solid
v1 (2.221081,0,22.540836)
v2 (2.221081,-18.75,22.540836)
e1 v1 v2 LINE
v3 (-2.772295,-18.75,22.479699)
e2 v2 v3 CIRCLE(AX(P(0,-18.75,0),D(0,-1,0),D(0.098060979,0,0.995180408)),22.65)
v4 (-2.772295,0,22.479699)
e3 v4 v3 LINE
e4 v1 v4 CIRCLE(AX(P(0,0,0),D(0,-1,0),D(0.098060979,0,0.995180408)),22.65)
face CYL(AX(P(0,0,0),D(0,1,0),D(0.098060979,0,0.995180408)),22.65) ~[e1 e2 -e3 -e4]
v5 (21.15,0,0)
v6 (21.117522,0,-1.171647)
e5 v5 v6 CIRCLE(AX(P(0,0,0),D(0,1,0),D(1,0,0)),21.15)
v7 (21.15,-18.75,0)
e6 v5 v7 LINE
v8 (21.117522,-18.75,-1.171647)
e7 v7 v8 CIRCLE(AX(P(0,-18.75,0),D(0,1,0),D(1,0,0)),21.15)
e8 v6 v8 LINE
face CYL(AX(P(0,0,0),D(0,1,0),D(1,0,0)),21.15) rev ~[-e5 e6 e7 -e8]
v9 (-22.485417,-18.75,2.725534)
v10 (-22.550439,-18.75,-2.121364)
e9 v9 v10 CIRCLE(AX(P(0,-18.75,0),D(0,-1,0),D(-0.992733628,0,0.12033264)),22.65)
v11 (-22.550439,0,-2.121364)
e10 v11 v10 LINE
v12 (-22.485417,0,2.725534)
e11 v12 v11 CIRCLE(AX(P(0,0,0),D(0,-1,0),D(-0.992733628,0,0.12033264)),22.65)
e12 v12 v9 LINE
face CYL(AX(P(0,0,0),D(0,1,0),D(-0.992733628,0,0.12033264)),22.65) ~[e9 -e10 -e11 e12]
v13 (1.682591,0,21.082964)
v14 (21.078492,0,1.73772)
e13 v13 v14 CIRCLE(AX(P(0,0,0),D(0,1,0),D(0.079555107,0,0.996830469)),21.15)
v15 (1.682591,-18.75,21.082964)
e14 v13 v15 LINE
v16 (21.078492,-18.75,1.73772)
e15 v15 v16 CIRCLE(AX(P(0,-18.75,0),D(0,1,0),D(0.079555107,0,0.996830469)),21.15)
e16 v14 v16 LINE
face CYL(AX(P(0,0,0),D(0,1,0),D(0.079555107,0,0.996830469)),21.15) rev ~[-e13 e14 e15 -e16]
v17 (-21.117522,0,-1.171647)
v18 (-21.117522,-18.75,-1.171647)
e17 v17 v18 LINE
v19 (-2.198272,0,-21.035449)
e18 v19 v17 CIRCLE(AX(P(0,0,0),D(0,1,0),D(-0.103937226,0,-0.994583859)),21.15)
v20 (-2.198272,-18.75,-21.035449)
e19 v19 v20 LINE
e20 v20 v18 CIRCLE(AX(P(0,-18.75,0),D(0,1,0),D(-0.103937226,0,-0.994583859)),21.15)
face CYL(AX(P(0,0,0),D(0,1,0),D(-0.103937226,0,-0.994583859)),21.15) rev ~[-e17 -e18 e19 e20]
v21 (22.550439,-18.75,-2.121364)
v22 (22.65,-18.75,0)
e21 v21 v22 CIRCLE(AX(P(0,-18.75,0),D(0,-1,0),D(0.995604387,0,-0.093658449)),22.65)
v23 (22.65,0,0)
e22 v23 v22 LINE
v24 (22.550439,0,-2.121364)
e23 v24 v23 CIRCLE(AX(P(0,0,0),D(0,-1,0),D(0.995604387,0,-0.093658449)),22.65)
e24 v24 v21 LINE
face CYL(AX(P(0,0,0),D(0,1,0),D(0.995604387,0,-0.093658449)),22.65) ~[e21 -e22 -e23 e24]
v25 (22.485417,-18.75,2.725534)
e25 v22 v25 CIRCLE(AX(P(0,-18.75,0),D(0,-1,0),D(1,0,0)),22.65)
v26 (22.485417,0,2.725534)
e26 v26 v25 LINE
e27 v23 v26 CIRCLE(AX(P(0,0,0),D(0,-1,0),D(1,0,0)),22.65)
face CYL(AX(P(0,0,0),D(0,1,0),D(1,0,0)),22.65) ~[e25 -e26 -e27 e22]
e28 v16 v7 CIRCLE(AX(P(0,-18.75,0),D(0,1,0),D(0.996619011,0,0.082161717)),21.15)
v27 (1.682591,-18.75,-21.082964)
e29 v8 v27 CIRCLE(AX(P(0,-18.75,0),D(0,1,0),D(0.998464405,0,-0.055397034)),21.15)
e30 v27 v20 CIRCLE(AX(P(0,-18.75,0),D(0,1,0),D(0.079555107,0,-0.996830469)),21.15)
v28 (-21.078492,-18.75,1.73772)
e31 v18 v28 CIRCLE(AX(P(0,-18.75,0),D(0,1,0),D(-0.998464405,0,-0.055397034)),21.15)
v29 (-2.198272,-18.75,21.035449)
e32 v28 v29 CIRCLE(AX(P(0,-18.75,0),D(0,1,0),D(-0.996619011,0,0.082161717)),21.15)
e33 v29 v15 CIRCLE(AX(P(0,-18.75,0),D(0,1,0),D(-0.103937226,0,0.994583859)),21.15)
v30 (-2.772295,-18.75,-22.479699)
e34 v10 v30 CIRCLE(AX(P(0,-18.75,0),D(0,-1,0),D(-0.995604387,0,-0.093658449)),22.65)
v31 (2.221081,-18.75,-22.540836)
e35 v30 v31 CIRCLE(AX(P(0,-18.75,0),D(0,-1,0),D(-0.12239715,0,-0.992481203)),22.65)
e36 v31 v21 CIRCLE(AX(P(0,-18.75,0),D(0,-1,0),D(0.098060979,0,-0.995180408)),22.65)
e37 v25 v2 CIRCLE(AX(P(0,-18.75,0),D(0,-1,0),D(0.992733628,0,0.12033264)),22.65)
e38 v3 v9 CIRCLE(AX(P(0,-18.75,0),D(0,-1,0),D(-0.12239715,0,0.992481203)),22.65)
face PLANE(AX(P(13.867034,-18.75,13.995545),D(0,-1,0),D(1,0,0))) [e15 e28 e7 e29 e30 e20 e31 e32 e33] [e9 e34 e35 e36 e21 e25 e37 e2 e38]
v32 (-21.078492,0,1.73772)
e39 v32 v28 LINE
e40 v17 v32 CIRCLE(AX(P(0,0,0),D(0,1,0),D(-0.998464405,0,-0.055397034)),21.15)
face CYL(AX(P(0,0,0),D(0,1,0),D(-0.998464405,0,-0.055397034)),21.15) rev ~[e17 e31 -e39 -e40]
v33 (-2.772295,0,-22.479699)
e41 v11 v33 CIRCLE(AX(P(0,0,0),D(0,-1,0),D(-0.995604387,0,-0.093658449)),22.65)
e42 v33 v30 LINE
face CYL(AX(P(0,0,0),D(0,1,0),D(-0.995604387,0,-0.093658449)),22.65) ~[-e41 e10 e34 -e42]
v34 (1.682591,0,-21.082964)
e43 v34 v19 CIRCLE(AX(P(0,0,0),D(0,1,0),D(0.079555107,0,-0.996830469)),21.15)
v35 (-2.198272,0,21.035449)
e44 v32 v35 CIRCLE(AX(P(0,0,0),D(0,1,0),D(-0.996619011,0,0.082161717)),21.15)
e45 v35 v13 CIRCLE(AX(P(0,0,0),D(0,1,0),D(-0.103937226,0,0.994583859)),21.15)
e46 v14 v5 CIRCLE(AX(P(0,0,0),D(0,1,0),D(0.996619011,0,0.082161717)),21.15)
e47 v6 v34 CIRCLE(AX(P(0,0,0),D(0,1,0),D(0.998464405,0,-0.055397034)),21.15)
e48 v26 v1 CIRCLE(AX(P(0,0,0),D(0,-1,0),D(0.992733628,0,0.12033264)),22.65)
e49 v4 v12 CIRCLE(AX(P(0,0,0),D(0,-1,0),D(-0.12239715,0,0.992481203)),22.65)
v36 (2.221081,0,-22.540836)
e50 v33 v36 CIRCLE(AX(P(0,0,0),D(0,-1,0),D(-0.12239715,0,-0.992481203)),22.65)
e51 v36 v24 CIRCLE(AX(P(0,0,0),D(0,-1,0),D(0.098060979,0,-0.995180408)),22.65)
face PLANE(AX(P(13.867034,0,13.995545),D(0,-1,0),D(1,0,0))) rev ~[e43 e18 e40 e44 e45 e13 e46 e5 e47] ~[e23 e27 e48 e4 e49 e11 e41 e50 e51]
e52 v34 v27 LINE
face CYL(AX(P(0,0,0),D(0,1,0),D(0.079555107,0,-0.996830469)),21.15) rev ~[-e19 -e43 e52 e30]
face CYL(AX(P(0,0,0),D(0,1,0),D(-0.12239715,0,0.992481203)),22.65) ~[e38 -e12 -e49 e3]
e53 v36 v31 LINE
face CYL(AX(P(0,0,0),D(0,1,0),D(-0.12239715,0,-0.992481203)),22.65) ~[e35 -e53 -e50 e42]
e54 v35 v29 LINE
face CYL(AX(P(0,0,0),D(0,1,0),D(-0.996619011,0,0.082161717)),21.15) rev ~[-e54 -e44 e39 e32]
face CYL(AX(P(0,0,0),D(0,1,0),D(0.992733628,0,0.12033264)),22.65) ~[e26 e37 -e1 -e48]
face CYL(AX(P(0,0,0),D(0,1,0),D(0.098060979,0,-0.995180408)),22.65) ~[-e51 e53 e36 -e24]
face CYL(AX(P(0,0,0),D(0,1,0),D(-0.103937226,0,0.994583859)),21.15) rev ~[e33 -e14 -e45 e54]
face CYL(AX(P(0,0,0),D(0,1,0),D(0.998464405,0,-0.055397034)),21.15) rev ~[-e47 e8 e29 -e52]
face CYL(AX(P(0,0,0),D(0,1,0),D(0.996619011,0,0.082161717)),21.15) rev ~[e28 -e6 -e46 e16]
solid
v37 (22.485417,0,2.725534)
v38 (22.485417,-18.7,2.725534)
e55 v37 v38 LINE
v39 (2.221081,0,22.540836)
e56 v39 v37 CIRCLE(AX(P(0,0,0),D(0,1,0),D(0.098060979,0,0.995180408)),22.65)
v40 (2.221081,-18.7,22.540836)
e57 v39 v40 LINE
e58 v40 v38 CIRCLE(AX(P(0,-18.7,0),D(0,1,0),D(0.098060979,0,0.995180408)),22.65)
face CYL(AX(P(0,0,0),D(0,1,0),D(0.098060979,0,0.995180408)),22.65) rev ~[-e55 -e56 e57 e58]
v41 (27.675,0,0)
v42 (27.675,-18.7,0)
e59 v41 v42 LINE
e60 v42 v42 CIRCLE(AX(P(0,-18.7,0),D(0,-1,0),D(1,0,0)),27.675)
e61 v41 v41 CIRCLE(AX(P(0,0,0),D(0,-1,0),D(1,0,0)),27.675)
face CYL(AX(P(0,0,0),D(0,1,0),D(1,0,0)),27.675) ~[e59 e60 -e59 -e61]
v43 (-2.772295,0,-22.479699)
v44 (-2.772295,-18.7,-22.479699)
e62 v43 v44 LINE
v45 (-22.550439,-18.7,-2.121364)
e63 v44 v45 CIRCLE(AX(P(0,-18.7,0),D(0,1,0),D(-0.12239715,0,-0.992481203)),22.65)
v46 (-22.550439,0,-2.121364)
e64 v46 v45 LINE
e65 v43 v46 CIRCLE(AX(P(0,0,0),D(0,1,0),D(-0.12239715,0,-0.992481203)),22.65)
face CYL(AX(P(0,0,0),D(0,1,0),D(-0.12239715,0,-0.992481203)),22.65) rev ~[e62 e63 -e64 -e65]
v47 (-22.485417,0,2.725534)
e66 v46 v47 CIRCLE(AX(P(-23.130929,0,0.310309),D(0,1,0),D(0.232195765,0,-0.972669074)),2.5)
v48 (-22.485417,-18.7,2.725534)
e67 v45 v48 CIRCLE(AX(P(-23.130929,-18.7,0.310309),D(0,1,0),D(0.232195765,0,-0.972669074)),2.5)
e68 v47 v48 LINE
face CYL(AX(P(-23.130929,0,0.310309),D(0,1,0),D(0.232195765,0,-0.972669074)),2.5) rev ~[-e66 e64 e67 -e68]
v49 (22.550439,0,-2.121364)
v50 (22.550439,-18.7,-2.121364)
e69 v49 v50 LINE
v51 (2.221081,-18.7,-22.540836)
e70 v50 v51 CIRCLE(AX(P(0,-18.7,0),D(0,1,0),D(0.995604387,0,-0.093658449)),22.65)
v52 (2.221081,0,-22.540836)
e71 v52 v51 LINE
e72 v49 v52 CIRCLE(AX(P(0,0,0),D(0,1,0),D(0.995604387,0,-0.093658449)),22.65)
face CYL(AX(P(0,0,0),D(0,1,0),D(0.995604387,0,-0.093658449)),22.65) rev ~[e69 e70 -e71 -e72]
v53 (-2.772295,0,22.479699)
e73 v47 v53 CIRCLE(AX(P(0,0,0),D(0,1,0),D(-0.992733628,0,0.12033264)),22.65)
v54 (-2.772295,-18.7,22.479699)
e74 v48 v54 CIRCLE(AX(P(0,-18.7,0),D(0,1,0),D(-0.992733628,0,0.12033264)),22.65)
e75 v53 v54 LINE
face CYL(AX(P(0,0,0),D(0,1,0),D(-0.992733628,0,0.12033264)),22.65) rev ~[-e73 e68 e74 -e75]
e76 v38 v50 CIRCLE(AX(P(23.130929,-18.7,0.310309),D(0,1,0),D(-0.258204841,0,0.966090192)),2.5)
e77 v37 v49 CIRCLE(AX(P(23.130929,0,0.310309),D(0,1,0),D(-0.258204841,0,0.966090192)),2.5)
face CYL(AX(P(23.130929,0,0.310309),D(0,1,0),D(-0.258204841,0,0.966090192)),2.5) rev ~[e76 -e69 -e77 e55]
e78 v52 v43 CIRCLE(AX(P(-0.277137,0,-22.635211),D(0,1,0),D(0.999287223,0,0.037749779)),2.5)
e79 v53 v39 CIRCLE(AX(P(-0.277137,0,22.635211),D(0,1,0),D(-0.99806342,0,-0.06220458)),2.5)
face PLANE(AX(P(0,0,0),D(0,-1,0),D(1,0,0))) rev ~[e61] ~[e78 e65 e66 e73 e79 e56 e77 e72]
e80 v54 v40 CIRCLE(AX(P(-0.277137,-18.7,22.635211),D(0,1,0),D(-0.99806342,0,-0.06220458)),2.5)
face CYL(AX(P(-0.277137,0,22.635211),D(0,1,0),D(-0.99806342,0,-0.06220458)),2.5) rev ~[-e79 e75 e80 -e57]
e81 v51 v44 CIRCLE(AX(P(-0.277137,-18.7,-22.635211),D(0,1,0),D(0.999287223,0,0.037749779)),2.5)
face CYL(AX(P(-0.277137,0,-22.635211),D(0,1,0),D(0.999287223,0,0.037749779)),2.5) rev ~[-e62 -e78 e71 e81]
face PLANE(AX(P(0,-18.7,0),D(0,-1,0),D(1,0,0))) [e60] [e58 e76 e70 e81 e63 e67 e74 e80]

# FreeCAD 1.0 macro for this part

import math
import FreeCAD as App
import Part
import Sketcher

doc = App.newDocument("Part")
body = doc.addObject("PartDesign::Body", "Body")

# Sketch on XZ plane
sketch1 = doc.addObject("Sketcher::SketchObject", "Sketch")
body.addObject(sketch1)
sketch1.AttachmentSupport = (doc.XZ_Plane, [""])
sketch1.MapMode = "FlatFace"
sketch1.addGeometry(Part.Circle(App.Vector(0, 0, 0), App.Vector(0, 0, 1), 27.7), False)
sketch1.addGeometry(Part.ArcOfCircle(Part.Circle(App.Vector(-0.3, 22.6, 0), App.Vector(0, 0, 1), 2.5), math.radians(-2), math.radians(184)), False)
sketch1.addGeometry(Part.ArcOfCircle(Part.Circle(App.Vector(0, 0, 0), App.Vector(0, 0, 1), 22.6), math.radians(7), math.radians(84)), False)
sketch1.addGeometry(Part.ArcOfCircle(Part.Circle(App.Vector(23.1, 0.3, 0), App.Vector(0, 0, 1), 2.5), math.radians(-103), math.radians(105)), False)
sketch1.addGeometry(Part.ArcOfCircle(Part.Circle(App.Vector(0, 0, 0), App.Vector(0, 0, 1), 22.6), math.radians(-84), math.radians(-5)), False)
sketch1.addGeometry(Part.ArcOfCircle(Part.Circle(App.Vector(-0.3, -22.6, 0), App.Vector(0, 0, 1), 2.5), math.radians(176), math.radians(362)), False)
sketch1.addGeometry(Part.ArcOfCircle(Part.Circle(App.Vector(0, 0, 0), App.Vector(0, 0, 1), 22.6), math.radians(-175), math.radians(-97)), False)
sketch1.addGeometry(Part.ArcOfCircle(Part.Circle(App.Vector(-23.1, 0.3, 0), App.Vector(0, 0, 1), 2.5), math.radians(75), math.radians(283)), False)
sketch1.addGeometry(Part.ArcOfCircle(Part.Circle(App.Vector(0, 0, 0), App.Vector(0, 0, 1), 22.6), math.radians(97), math.radians(173)), False)
sketch1.addConstraint(Sketcher.Constraint("Coincident", 1, 1, 2, 2))
sketch1.addConstraint(Sketcher.Constraint("Coincident", 2, 1, 3, 2))
sketch1.addConstraint(Sketcher.Constraint("Coincident", 3, 1, 4, 2))
sketch1.addConstraint(Sketcher.Constraint("Coincident", 4, 1, 5, 2))
sketch1.addConstraint(Sketcher.Constraint("Coincident", 5, 1, 6, 2))
sketch1.addConstraint(Sketcher.Constraint("Coincident", 6, 1, 7, 2))
sketch1.addConstraint(Sketcher.Constraint("Coincident", 7, 1, 8, 2))
sketch1.addConstraint(Sketcher.Constraint("Coincident", 8, 1, 1, 2))
sketch1.addConstraint(Sketcher.Constraint("Coincident", 0, 3, -1, 1))
sketch1.addConstraint(Sketcher.Constraint("Coincident", 2, 3, -1, 1))
sketch1.addConstraint(Sketcher.Constraint("Coincident", 4, 3, -1, 1))
sketch1.addConstraint(Sketcher.Constraint("Coincident", 6, 3, -1, 1))
sketch1.addConstraint(Sketcher.Constraint("Coincident", 8, 3, -1, 1))
sketch1.addConstraint(Sketcher.Constraint("Equal", 1, 3))
sketch1.addConstraint(Sketcher.Constraint("Equal", 2, 4))
sketch1.addConstraint(Sketcher.Constraint("Equal", 3, 5))
sketch1.addConstraint(Sketcher.Constraint("Equal", 4, 6))
sketch1.addConstraint(Sketcher.Constraint("Equal", 5, 7))
sketch1.addConstraint(Sketcher.Constraint("Equal", 6, 8))
sketch1.addConstraint(Sketcher.Constraint("Symmetric", 3, 3, 7, 3, -2))
sketch1.addConstraint(Sketcher.Constraint("Symmetric", 1, 3, 5, 3, -1))
sketch1.addConstraint(Sketcher.Constraint("Radius", 1, 2.5))
sketch1.addConstraint(Sketcher.Constraint("Diameter", 0, 55.35))
sketch1.addConstraint(Sketcher.Constraint("Radius", 2, 22.65))
sketch1.addConstraint(Sketcher.Constraint("DistanceY", 5, 1, -1, 1, 22.479699))
sketch1.addConstraint(Sketcher.Constraint("DistanceY", 3, 3, 1, 3, 22.324902))
sketch1.addConstraint(Sketcher.Constraint("DistanceY", 3, 1, 2, 1, 4.846898))
sketch1.addConstraint(Sketcher.Constraint("DistanceY", -1, 1, 1, 3, 22.635211))
pad1 = doc.addObject("PartDesign::Pad", "Pad")
body.addObject(pad1)
pad1.Profile = sketch1
pad1.Length = 18.7
body2 = doc.addObject("PartDesign::Body", "Body001")

# Sketch on XZ plane
sketch2 = doc.addObject("Sketcher::SketchObject", "Sketch001")
body2.addObject(sketch2)
sketch2.AttachmentSupport = (doc.getObject("XZ_Plane001"), [""])
sketch2.MapMode = "FlatFace"
sketch2.addGeometry(Part.ArcOfCircle(Part.Circle(App.Vector(0, 0, 0), App.Vector(0, 0, 1), 22.6), math.radians(7), math.radians(84)), False)
sketch2.addGeometry(Part.ArcOfCircle(Part.Circle(App.Vector(0, 0, 0), App.Vector(0, 0, 1), 22.6), math.radians(84.37), math.radians(97.03)), False)
sketch2.addGeometry(Part.ArcOfCircle(Part.Circle(App.Vector(0, 0, 0), App.Vector(0, 0, 1), 22.6), math.radians(97), math.radians(173)), False)
sketch2.addGeometry(Part.ArcOfCircle(Part.Circle(App.Vector(0, 0, 0), App.Vector(0, 0, 1), 22.7), math.radians(173.09), math.radians(185.37)), False)
sketch2.addGeometry(Part.ArcOfCircle(Part.Circle(App.Vector(0, 0, 0), App.Vector(0, 0, 1), 22.6), math.radians(-175), math.radians(-97)), False)
sketch2.addGeometry(Part.ArcOfCircle(Part.Circle(App.Vector(0, 0, 0), App.Vector(0, 0, 1), 22.6), math.radians(-97.03), math.radians(-84.37)), False)
sketch2.addGeometry(Part.ArcOfCircle(Part.Circle(App.Vector(0, 0, 0), App.Vector(0, 0, 1), 22.6), math.radians(-84), math.radians(-5)), False)
sketch2.addGeometry(Part.ArcOfCircle(Part.Circle(App.Vector(0, 0, 0), App.Vector(0, 0, 1), 22.6), math.radians(-5.37), math.radians(0)), False)
sketch2.addGeometry(Part.ArcOfCircle(Part.Circle(App.Vector(0, 0, 0), App.Vector(0, 0, 1), 22.7), math.radians(0), math.radians(6.91)), False)
sketch2.addGeometry(Part.ArcOfCircle(Part.Circle(App.Vector(0, 0, 0), App.Vector(0, 0, 1), 21.1), math.radians(5), math.radians(85)), False)
sketch2.addGeometry(Part.ArcOfCircle(Part.Circle(App.Vector(0, 0, 0), App.Vector(0, 0, 1), 21.1), math.radians(0), math.radians(4.71)), False)
sketch2.addGeometry(Part.ArcOfCircle(Part.Circle(App.Vector(0, 0, 0), App.Vector(0, 0, 1), 21.2), math.radians(-3.18), math.radians(0)), False)
sketch2.addGeometry(Part.ArcOfCircle(Part.Circle(App.Vector(0, 0, 0), App.Vector(0, 0, 1), 21.1), math.radians(-85), math.radians(-3)), False)
sketch2.addGeometry(Part.ArcOfCircle(Part.Circle(App.Vector(0, 0, 0), App.Vector(0, 0, 1), 21.2), math.radians(-95.97), math.radians(-85.44)), False)
sketch2.addGeometry(Part.ArcOfCircle(Part.Circle(App.Vector(0, 0, 0), App.Vector(0, 0, 1), 21.1), math.radians(-177), math.radians(-96)), False)
sketch2.addGeometry(Part.ArcOfCircle(Part.Circle(App.Vector(0, 0, 0), App.Vector(0, 0, 1), 21.1), math.radians(175.29), math.radians(183.18)), False)
sketch2.addGeometry(Part.ArcOfCircle(Part.Circle(App.Vector(0, 0, 0), App.Vector(0, 0, 1), 21.1), math.radians(96), math.radians(175)), False)
sketch2.addGeometry(Part.ArcOfCircle(Part.Circle(App.Vector(0, 0, 0), App.Vector(0, 0, 1), 21.2), math.radians(85.44), math.radians(95.97)), False)
sketch2.addConstraint(Sketcher.Constraint("Tangent", 0, 2, 1, 1))
sketch2.addConstraint(Sketcher.Constraint("Tangent", 1, 2, 2, 1))
sketch2.addConstraint(Sketcher.Constraint("Tangent", 2, 2, 3, 1))
sketch2.addConstraint(Sketcher.Constraint("Tangent", 3, 2, 4, 1))
sketch2.addConstraint(Sketcher.Constraint("Tangent", 4, 2, 5, 1))
sketch2.addConstraint(Sketcher.Constraint("Tangent", 5, 2, 6, 1))
sketch2.addConstraint(Sketcher.Constraint("Tangent", 6, 2, 7, 1))
sketch2.addConstraint(Sketcher.Constraint("Tangent", 7, 2, 8, 1))
sketch2.addConstraint(Sketcher.Constraint("Tangent", 8, 2, 0, 1))
sketch2.addConstraint(Sketcher.Constraint("Tangent", 9, 1, 10, 2))
sketch2.addConstraint(Sketcher.Constraint("Tangent", 10, 1, 11, 2))
sketch2.addConstraint(Sketcher.Constraint("Tangent", 11, 1, 12, 2))
sketch2.addConstraint(Sketcher.Constraint("Tangent", 12, 1, 13, 2))
sketch2.addConstraint(Sketcher.Constraint("Tangent", 13, 1, 14, 2))
sketch2.addConstraint(Sketcher.Constraint("Tangent", 14, 1, 15, 2))
sketch2.addConstraint(Sketcher.Constraint("Tangent", 15, 1, 16, 2))
sketch2.addConstraint(Sketcher.Constraint("Tangent", 16, 1, 17, 2))
sketch2.addConstraint(Sketcher.Constraint("Tangent", 17, 1, 9, 2))
sketch2.addConstraint(Sketcher.Constraint("Coincident", 0, 3, -1, 1))
sketch2.addConstraint(Sketcher.Constraint("Coincident", 2, 3, -1, 1))
sketch2.addConstraint(Sketcher.Constraint("Coincident", 4, 3, -1, 1))
sketch2.addConstraint(Sketcher.Constraint("Coincident", 6, 3, -1, 1))
sketch2.addConstraint(Sketcher.Constraint("Coincident", 9, 3, -1, 1))
sketch2.addConstraint(Sketcher.Constraint("Coincident", 11, 3, -1, 1))
sketch2.addConstraint(Sketcher.Constraint("Coincident", 13, 3, -1, 1))
sketch2.addConstraint(Sketcher.Constraint("Coincident", 15, 3, -1, 1))
sketch2.addConstraint(Sketcher.Constraint("PointOnObject", 7, 2, -1))
sketch2.addConstraint(Sketcher.Constraint("PointOnObject", 10, 1, -1))
sketch2.addConstraint(Sketcher.Constraint("Horizontal", 3, 2, 6, 2))
sketch2.addConstraint(Sketcher.Constraint("Horizontal", 2, 2, 8, 2))
sketch2.addConstraint(Sketcher.Constraint("Horizontal", 11, 1, 14, 1))
sketch2.addConstraint(Sketcher.Constraint("Horizontal", 9, 1, 15, 1))
sketch2.addConstraint(Sketcher.Constraint("Vertical", 1, 2, 4, 2))
sketch2.addConstraint(Sketcher.Constraint("Vertical", 0, 2, 5, 2))
sketch2.addConstraint(Sketcher.Constraint("Vertical", 13, 1, 16, 1))
sketch2.addConstraint(Sketcher.Constraint("Vertical", 12, 1, 17, 1))
sketch2.addConstraint(Sketcher.Constraint("Radius", 0, 22.65))
sketch2.addConstraint(Sketcher.Constraint("Radius", 9, 21.15))
sketch2.addConstraint(Sketcher.Constraint("DistanceY", -1, 1, 1, 2, 22.479699))
sketch2.addConstraint(Sketcher.Constraint("DistanceY", 3, 2, 2, 2, 4.846898))
sketch2.addConstraint(Sketcher.Constraint("DistanceX", -1, 1, 0, 2, 2.221081))
sketch2.addConstraint(Sketcher.Constraint("DistanceX", 3, 2, -1, 1, 22.550439))
sketch2.addConstraint(Sketcher.Constraint("DistanceY", -1, 1, 9, 1, 1.73772))
sketch2.addConstraint(Sketcher.Constraint("DistanceX", -1, 1, 12, 1, 1.682591))
sketch2.addConstraint(Sketcher.Constraint("DistanceY", 13, 1, -1, 1, 21.035449))
sketch2.addConstraint(Sketcher.Constraint("DistanceX", 9, 1, 11, 1, 0.03903))
pad2 = doc.addObject("PartDesign::Pad", "Pad001")
body2.addObject(pad2)
pad2.Profile = sketch2
pad2.Length = 18.75

doc.recompute()
